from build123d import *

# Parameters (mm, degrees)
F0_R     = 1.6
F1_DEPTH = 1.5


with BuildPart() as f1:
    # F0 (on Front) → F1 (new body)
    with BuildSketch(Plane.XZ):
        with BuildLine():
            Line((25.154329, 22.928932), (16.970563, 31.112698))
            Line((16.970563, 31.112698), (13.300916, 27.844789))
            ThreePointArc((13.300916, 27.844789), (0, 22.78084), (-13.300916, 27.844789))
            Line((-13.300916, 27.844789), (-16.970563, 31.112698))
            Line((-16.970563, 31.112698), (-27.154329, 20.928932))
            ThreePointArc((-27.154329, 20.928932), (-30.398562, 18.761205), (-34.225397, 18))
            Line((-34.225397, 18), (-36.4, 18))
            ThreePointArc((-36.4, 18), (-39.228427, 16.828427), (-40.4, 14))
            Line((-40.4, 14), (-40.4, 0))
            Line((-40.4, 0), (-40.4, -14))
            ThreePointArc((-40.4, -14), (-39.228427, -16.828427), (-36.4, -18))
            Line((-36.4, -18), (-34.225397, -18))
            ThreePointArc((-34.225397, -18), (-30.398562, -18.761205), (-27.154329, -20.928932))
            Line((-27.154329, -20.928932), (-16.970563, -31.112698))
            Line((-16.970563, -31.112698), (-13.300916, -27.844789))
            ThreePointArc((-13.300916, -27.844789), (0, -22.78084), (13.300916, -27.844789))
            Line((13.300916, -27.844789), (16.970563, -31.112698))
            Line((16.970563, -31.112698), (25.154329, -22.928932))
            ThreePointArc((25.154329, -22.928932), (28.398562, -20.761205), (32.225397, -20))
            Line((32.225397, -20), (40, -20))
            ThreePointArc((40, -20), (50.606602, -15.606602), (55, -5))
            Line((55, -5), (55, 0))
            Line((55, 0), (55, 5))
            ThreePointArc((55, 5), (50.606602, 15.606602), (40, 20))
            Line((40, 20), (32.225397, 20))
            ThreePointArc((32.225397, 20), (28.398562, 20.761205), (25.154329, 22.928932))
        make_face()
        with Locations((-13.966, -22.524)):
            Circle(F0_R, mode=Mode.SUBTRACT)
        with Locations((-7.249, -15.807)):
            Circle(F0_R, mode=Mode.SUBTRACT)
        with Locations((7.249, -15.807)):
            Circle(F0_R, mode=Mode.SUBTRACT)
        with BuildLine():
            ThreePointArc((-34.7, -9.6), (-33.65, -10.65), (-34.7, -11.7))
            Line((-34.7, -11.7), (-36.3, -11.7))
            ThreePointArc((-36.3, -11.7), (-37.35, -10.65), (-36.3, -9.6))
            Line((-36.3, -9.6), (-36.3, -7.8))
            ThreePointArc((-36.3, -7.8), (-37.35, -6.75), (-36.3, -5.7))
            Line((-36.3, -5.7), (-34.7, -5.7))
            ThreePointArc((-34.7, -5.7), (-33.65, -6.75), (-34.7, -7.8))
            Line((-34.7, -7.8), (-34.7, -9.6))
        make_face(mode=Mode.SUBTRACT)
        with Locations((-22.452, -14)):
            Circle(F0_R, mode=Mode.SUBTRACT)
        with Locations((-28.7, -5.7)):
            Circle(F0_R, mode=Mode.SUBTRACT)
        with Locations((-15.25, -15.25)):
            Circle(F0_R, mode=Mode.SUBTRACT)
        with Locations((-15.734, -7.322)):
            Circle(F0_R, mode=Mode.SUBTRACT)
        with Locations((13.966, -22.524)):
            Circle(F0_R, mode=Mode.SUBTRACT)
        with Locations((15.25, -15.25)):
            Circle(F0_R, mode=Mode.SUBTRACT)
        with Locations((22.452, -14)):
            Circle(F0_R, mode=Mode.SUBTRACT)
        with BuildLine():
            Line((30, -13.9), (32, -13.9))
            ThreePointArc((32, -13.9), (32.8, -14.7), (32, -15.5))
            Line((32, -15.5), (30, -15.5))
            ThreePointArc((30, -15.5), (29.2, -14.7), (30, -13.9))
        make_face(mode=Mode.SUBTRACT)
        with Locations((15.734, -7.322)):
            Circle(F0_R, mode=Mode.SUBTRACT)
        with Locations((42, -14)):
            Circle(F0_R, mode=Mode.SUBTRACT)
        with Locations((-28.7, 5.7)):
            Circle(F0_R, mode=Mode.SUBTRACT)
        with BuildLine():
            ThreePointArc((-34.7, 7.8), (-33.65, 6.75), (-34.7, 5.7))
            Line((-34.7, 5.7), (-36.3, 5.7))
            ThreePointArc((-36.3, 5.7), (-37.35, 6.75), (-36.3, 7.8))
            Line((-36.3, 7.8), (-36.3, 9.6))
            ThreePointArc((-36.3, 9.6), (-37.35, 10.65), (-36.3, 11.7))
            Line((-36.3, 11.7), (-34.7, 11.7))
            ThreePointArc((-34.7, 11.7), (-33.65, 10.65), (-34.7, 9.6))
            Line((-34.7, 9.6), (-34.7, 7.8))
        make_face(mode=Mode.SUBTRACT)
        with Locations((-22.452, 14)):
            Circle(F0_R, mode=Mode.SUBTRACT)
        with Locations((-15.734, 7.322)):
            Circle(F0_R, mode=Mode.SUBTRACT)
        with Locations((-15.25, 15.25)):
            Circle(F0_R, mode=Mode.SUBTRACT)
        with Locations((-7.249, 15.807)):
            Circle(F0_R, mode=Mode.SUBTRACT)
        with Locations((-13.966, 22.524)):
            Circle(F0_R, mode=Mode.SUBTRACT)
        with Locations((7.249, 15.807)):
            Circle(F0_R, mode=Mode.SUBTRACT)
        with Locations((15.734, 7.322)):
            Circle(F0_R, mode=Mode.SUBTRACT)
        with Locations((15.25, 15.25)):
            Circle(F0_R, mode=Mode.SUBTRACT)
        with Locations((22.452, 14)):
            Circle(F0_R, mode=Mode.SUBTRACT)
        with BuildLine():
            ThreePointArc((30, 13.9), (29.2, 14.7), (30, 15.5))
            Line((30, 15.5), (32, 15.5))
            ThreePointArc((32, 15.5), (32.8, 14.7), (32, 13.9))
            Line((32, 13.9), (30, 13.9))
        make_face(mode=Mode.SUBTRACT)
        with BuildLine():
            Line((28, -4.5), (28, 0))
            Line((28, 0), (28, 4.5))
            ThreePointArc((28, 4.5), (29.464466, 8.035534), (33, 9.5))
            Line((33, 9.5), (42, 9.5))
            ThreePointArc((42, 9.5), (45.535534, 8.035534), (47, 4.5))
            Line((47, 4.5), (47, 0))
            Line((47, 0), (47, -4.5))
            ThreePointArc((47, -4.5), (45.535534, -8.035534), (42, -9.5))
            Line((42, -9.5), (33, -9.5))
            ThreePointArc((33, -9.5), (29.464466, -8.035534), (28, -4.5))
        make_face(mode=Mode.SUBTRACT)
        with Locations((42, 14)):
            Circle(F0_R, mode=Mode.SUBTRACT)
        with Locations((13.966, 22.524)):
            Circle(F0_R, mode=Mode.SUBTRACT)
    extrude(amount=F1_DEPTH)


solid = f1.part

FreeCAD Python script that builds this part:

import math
import FreeCAD as App
import Part
import Sketcher

doc = App.newDocument("Part")
params = doc.addObject("Spreadsheet::Sheet", "Params")
for row, (alias, value) in enumerate([
    ("sketch1_radius", "19.999999 mm"),
    ("sketch1_radius2", "4 mm"),
    ("sketch1_radius3", "14.999999 mm"),
    ("sketch1_radius4", "5 mm"),
    ("sketch1_diameter", "3.2 mm"),
    ("pad1_length", "1.5 mm"),
], start=1):
    params.set(f"A{row}", alias)
    params.set(f"B{row}", "=" + value)
    params.setAlias(f"B{row}", alias)

body = doc.addObject("PartDesign::Body", "Body")

# Sketch on XZ plane
sketch1 = body.newObject("Sketcher::SketchObject", "Sketch")
sketch1.AttachmentSupport = (doc.getObject("XZ_Plane"), [""])
sketch1.MapMode = "FlatFace"
sketch1.addGeometry([
    Part.LineSegment(App.Vector(25.2, 22.9, 0), App.Vector(17, 31.1, 0)),  # 0
    Part.LineSegment(App.Vector(17, 31.1, 0), App.Vector(13.3, 27.8, 0)),  # 1
    Part.ArcOfCircle(Part.Circle(App.Vector(0, 42.8, 0), App.Vector(0, 0, 1), 20), math.radians(-132), math.radians(-48)),  # 2
    Part.LineSegment(App.Vector(-13.3, 27.8, 0), App.Vector(-17, 31.1, 0)),  # 3
    Part.LineSegment(App.Vector(-17, 31.1, 0), App.Vector(-27.2, 20.9, 0)),  # 4
    Part.ArcOfCircle(Part.Circle(App.Vector(-34.2, 28, 0), App.Vector(0, 0, 1), 10), math.radians(-90), math.radians(-45)),  # 5
    Part.LineSegment(App.Vector(-34.2, 18, 0), App.Vector(-36.4, 18, 0)),  # 6
    Part.ArcOfCircle(Part.Circle(App.Vector(-36.4, 14, 0), App.Vector(0, 0, 1), 4), math.radians(90), math.radians(180)),  # 7
    Part.LineSegment(App.Vector(-40.4, 14, 0), App.Vector(-40.4, -14, 0)),  # 8
    Part.ArcOfCircle(Part.Circle(App.Vector(-36.4, -14, 0), App.Vector(0, 0, 1), 4), math.radians(-180), math.radians(-90)),  # 9
    Part.LineSegment(App.Vector(-36.4, -18, 0), App.Vector(-34.2, -18, 0)),  # 10
    Part.ArcOfCircle(Part.Circle(App.Vector(-34.2, -28, 0), App.Vector(0, 0, 1), 10), math.radians(45), math.radians(90)),  # 11
    Part.LineSegment(App.Vector(-27.2, -20.9, 0), App.Vector(-17, -31.1, 0)),  # 12
    Part.LineSegment(App.Vector(-17, -31.1, 0), App.Vector(-13.3, -27.8, 0)),  # 13
    Part.ArcOfCircle(Part.Circle(App.Vector(0, -42.8, 0), App.Vector(0, 0, 1), 20), math.radians(48), math.radians(132)),  # 14
    Part.LineSegment(App.Vector(13.3, -27.8, 0), App.Vector(17, -31.1, 0)),  # 15
    Part.LineSegment(App.Vector(17, -31.1, 0), App.Vector(25.2, -22.9, 0)),  # 16
    Part.ArcOfCircle(Part.Circle(App.Vector(32.2, -30, 0), App.Vector(0, 0, 1), 10), math.radians(90), math.radians(135)),  # 17
    Part.LineSegment(App.Vector(32.2, -20, 0), App.Vector(40, -20, 0)),  # 18
    Part.ArcOfCircle(Part.Circle(App.Vector(40, -5, 0), App.Vector(0, 0, 1), 15), math.radians(-90), math.radians(0)),  # 19
    Part.LineSegment(App.Vector(55, -5, 0), App.Vector(55, 5, 0)),  # 20
    Part.ArcOfCircle(Part.Circle(App.Vector(40, 5, 0), App.Vector(0, 0, 1), 15), math.radians(0), math.radians(90)),  # 21
    Part.LineSegment(App.Vector(40, 20, 0), App.Vector(32.2, 20, 0)),  # 22
    Part.ArcOfCircle(Part.Circle(App.Vector(32.2, 30, 0), App.Vector(0, 0, 1), 10), math.radians(-135), math.radians(-90)),  # 23
    Part.Circle(App.Vector(-22.5, -14, 0), App.Vector(0, 0, 1), 1.6),  # 24
    Part.Circle(App.Vector(-14, -22.5, 0), App.Vector(0, 0, 1), 1.6),  # 25
    Part.Circle(App.Vector(-15.2, -15.2, 0), App.Vector(0, 0, 1), 1.6),  # 26
    Part.Circle(App.Vector(-7.2, -15.8, 0), App.Vector(0, 0, 1), 1.6),  # 27
    Part.LineSegment(App.Vector(-34.7, -7.8, 0), App.Vector(-34.7, -9.6, 0)),  # 28
    Part.ArcOfCircle(Part.Circle(App.Vector(-34.7, -10.7, 0), App.Vector(0, 0, 1), 1.1), math.radians(-90), math.radians(90)),  # 29
    Part.LineSegment(App.Vector(-34.7, -11.7, 0), App.Vector(-36.3, -11.7, 0)),  # 30
    Part.ArcOfCircle(Part.Circle(App.Vector(-36.3, -10.7, 0), App.Vector(0, 0, 1), 1.1), math.radians(90), math.radians(270)),  # 31
    Part.LineSegment(App.Vector(-36.3, -9.6, 0), App.Vector(-36.3, -7.8, 0)),  # 32
    Part.ArcOfCircle(Part.Circle(App.Vector(-36.3, -6.8, 0), App.Vector(0, 0, 1), 1.1), math.radians(90), math.radians(270)),  # 33
    Part.LineSegment(App.Vector(-36.3, -5.7, 0), App.Vector(-34.7, -5.7, 0)),  # 34
    Part.ArcOfCircle(Part.Circle(App.Vector(-34.7, -6.8, 0), App.Vector(0, 0, 1), 1.1), math.radians(-90), math.radians(90)),  # 35
    Part.Circle(App.Vector(-28.7, -5.7, 0), App.Vector(0, 0, 1), 1.6),  # 36
    Part.Circle(App.Vector(-15.7, -7.3, 0), App.Vector(0, 0, 1), 1.6),  # 37
    Part.Circle(App.Vector(14, -22.5, 0), App.Vector(0, 0, 1), 1.6),  # 38
    Part.Circle(App.Vector(7.2, -15.8, 0), App.Vector(0, 0, 1), 1.6),  # 39
    Part.Circle(App.Vector(15.2, -15.2, 0), App.Vector(0, 0, 1), 1.6),  # 40
    Part.Circle(App.Vector(22.5, -14, 0), App.Vector(0, 0, 1), 1.6),  # 41
    Part.ArcOfCircle(Part.Circle(App.Vector(30, -14.7, 0), App.Vector(0, 0, 1), 0.8), math.radians(90), math.radians(270)),  # 42
    Part.LineSegment(App.Vector(30, -13.9, 0), App.Vector(32, -13.9, 0)),  # 43
    Part.ArcOfCircle(Part.Circle(App.Vector(32, -14.7, 0), App.Vector(0, 0, 1), 0.8), math.radians(-90), math.radians(90)),  # 44
    Part.LineSegment(App.Vector(32, -15.5, 0), App.Vector(30, -15.5, 0)),  # 45
    Part.Circle(App.Vector(42, -14, 0), App.Vector(0, 0, 1), 1.6),  # 46
    Part.Circle(App.Vector(15.7, -7.3, 0), App.Vector(0, 0, 1), 1.6),  # 47
    Part.Circle(App.Vector(-28.7, 5.7, 0), App.Vector(0, 0, 1), 1.6),  # 48
    Part.LineSegment(App.Vector(-34.7, 9.6, 0), App.Vector(-34.7, 7.8, 0)),  # 49
    Part.ArcOfCircle(Part.Circle(App.Vector(-34.7, 6.8, 0), App.Vector(0, 0, 1), 1.1), math.radians(-90), math.radians(90)),  # 50
    Part.LineSegment(App.Vector(-34.7, 5.7, 0), App.Vector(-36.3, 5.7, 0)),  # 51
    Part.ArcOfCircle(Part.Circle(App.Vector(-36.3, 6.8, 0), App.Vector(0, 0, 1), 1.1), math.radians(90), math.radians(270)),  # 52
    Part.LineSegment(App.Vector(-36.3, 7.8, 0), App.Vector(-36.3, 9.6, 0)),  # 53
    Part.ArcOfCircle(Part.Circle(App.Vector(-36.3, 10.7, 0), App.Vector(0, 0, 1), 1.1), math.radians(90), math.radians(270)),  # 54
    Part.LineSegment(App.Vector(-36.3, 11.7, 0), App.Vector(-34.7, 11.7, 0)),  # 55
    Part.ArcOfCircle(Part.Circle(App.Vector(-34.7, 10.7, 0), App.Vector(0, 0, 1), 1.1), math.radians(-90), math.radians(90)),  # 56
    Part.Circle(App.Vector(-15.7, 7.3, 0), App.Vector(0, 0, 1), 1.6),  # 57
    Part.Circle(App.Vector(-22.5, 14, 0), App.Vector(0, 0, 1), 1.6),  # 58
    Part.Circle(App.Vector(-15.2, 15.2, 0), App.Vector(0, 0, 1), 1.6),  # 59
    Part.Circle(App.Vector(-7.2, 15.8, 0), App.Vector(0, 0, 1), 1.6),  # 60
    Part.Circle(App.Vector(-14, 22.5, 0), App.Vector(0, 0, 1), 1.6),  # 61
    Part.Circle(App.Vector(15.7, 7.3, 0), App.Vector(0, 0, 1), 1.6),  # 62
    Part.ArcOfCircle(Part.Circle(App.Vector(33, -4.5, 0), App.Vector(0, 0, 1), 5), math.radians(180), math.radians(270)),  # 63
    Part.LineSegment(App.Vector(28, -4.5, 0), App.Vector(28, 4.5, 0)),  # 64
    Part.ArcOfCircle(Part.Circle(App.Vector(33, 4.5, 0), App.Vector(0, 0, 1), 5), math.radians(90), math.radians(180)),  # 65
    Part.LineSegment(App.Vector(33, 9.5, 0), App.Vector(42, 9.5, 0)),  # 66
    Part.ArcOfCircle(Part.Circle(App.Vector(42, 4.5, 0), App.Vector(0, 0, 1), 5), math.radians(0), math.radians(90)),  # 67
    Part.LineSegment(App.Vector(47, 4.5, 0), App.Vector(47, -4.5, 0)),  # 68
    Part.ArcOfCircle(Part.Circle(App.Vector(42, -4.5, 0), App.Vector(0, 0, 1), 5), math.radians(-90), math.radians(0)),  # 69
    Part.LineSegment(App.Vector(42, -9.5, 0), App.Vector(33, -9.5, 0)),  # 70
    Part.Circle(App.Vector(7.2, 15.8, 0), App.Vector(0, 0, 1), 1.6),  # 71
    Part.Circle(App.Vector(15.2, 15.2, 0), App.Vector(0, 0, 1), 1.6),  # 72
    Part.Circle(App.Vector(22.5, 14, 0), App.Vector(0, 0, 1), 1.6),  # 73
    Part.Circle(App.Vector(14, 22.5, 0), App.Vector(0, 0, 1), 1.6),  # 74
    Part.LineSegment(App.Vector(32, 13.9, 0), App.Vector(30, 13.9, 0)),  # 75
    Part.ArcOfCircle(Part.Circle(App.Vector(30, 14.7, 0), App.Vector(0, 0, 1), 0.8), math.radians(90), math.radians(270)),  # 76
    Part.LineSegment(App.Vector(30, 15.5, 0), App.Vector(32, 15.5, 0)),  # 77
    Part.ArcOfCircle(Part.Circle(App.Vector(32, 14.7, 0), App.Vector(0, 0, 1), 0.8), math.radians(-90), math.radians(90)),  # 78
    Part.Circle(App.Vector(42, 14, 0), App.Vector(0, 0, 1), 1.6),  # 79
], False)
sketch1.addConstraint([
    Sketcher.Constraint("Coincident", 0, 2, 1, 1),
    Sketcher.Constraint("Tangent", 1, 2, 2, 2),
    Sketcher.Constraint("Tangent", 2, 1, 3, 1),
    Sketcher.Constraint("Coincident", 3, 2, 4, 1),
    Sketcher.Constraint("Tangent", 4, 2, 5, 2),
    Sketcher.Constraint("Tangent", 5, 1, 6, 1),
    Sketcher.Constraint("Tangent", 6, 2, 7, 1),
    Sketcher.Constraint("Tangent", 7, 2, 8, 1),
    Sketcher.Constraint("Tangent", 8, 2, 9, 1),
    Sketcher.Constraint("Tangent", 9, 2, 10, 1),
    Sketcher.Constraint("Tangent", 10, 2, 11, 2),
    Sketcher.Constraint("Tangent", 11, 1, 12, 1),
    Sketcher.Constraint("Coincident", 12, 2, 13, 1),
    Sketcher.Constraint("Tangent", 13, 2, 14, 2),
    Sketcher.Constraint("Tangent", 14, 1, 15, 1),
    Sketcher.Constraint("Coincident", 15, 2, 16, 1),
    Sketcher.Constraint("Tangent", 16, 2, 17, 2),
    Sketcher.Constraint("Tangent", 17, 1, 18, 1),
    Sketcher.Constraint("Tangent", 18, 2, 19, 1),
    Sketcher.Constraint("Tangent", 19, 2, 20, 1),
    Sketcher.Constraint("Tangent", 20, 2, 21, 1),
    Sketcher.Constraint("Tangent", 21, 2, 22, 1),
    Sketcher.Constraint("Tangent", 22, 2, 23, 2),
    Sketcher.Constraint("Tangent", 23, 1, 0, 1),
    Sketcher.Constraint("Coincident", 28, 2, 29, 2),
    Sketcher.Constraint("Tangent", 29, 1, 30, 1),
    Sketcher.Constraint("Tangent", 30, 2, 31, 2),
    Sketcher.Constraint("Coincident", 31, 1, 32, 1),
    Sketcher.Constraint("Coincident", 32, 2, 33, 2),
    Sketcher.Constraint("Tangent", 33, 1, 34, 1),
    Sketcher.Constraint("Tangent", 34, 2, 35, 2),
    Sketcher.Constraint("Coincident", 35, 1, 28, 1),
    Sketcher.Constraint("Tangent", 42, 1, 43, 1),
    Sketcher.Constraint("Tangent", 43, 2, 44, 2),
    Sketcher.Constraint("Tangent", 44, 1, 45, 1),
    Sketcher.Constraint("Tangent", 45, 2, 42, 2),
    Sketcher.Constraint("Coincident", 49, 2, 50, 2),
    Sketcher.Constraint("Tangent", 50, 1, 51, 1),
    Sketcher.Constraint("Tangent", 51, 2, 52, 2),
    Sketcher.Constraint("Coincident", 52, 1, 53, 1),
    Sketcher.Constraint("Coincident", 53, 2, 54, 2),
    Sketcher.Constraint("Tangent", 54, 1, 55, 1),
    Sketcher.Constraint("Tangent", 55, 2, 56, 2),
    Sketcher.Constraint("Coincident", 56, 1, 49, 1),
    Sketcher.Constraint("Tangent", 63, 1, 64, 1),
    Sketcher.Constraint("Tangent", 64, 2, 65, 2),
    Sketcher.Constraint("Tangent", 65, 1, 66, 1),
    Sketcher.Constraint("Tangent", 66, 2, 67, 2),
    Sketcher.Constraint("Tangent", 67, 1, 68, 1),
    Sketcher.Constraint("Tangent", 68, 2, 69, 2),
    Sketcher.Constraint("Tangent", 69, 1, 70, 1),
    Sketcher.Constraint("Tangent", 70, 2, 63, 2),
    Sketcher.Constraint("Tangent", 75, 2, 76, 2),
    Sketcher.Constraint("Tangent", 76, 1, 77, 1),
    Sketcher.Constraint("Tangent", 77, 2, 78, 2),
    Sketcher.Constraint("Tangent", 78, 1, 75, 1),
    Sketcher.Constraint("Horizontal", 6),
    Sketcher.Constraint("Vertical", 8),
    Sketcher.Constraint("Horizontal", 10),
    Sketcher.Constraint("Horizontal", 18),
    Sketcher.Constraint("Vertical", 20),
    Sketcher.Constraint("Horizontal", 22),
    Sketcher.Constraint("Vertical", 28),
    Sketcher.Constraint("Horizontal", 30),
    Sketcher.Constraint("Vertical", 32),
    Sketcher.Constraint("Horizontal", 34),
    Sketcher.Constraint("Horizontal", 43),
    Sketcher.Constraint("Horizontal", 45),
    Sketcher.Constraint("Vertical", 49),
    Sketcher.Constraint("Horizontal", 51),
    Sketcher.Constraint("Vertical", 53),
    Sketcher.Constraint("Horizontal", 55),
    Sketcher.Constraint("Vertical", 64),
    Sketcher.Constraint("Horizontal", 66),
    Sketcher.Constraint("Vertical", 68),
    Sketcher.Constraint("Horizontal", 70),
    Sketcher.Constraint("Horizontal", 75),
    Sketcher.Constraint("Horizontal", 77),
    Sketcher.Constraint("Equal", 7, 9),
    Sketcher.Constraint("Equal", 5, 11),
    Sketcher.Constraint("Equal", 2, 14),
    Sketcher.Constraint("Equal", 11, 17),
    Sketcher.Constraint("Equal", 19, 21),
    Sketcher.Constraint("Equal", 17, 23),
    Sketcher.Constraint("Equal", 24, 25),
    Sketcher.Constraint("Equal", 25, 26),
    Sketcher.Constraint("Equal", 26, 27),
    Sketcher.Constraint("Equal", 29, 31),
    Sketcher.Constraint("Equal", 31, 33),
    Sketcher.Constraint("Equal", 33, 35),
    Sketcher.Constraint("Equal", 27, 36),
    Sketcher.Constraint("Equal", 36, 37),
    Sketcher.Constraint("Equal", 37, 38),
    Sketcher.Constraint("Equal", 38, 39),
    Sketcher.Constraint("Equal", 39, 40),
    Sketcher.Constraint("Equal", 40, 41),
    Sketcher.Constraint("Equal", 41, 46),
    Sketcher.Constraint("Equal", 46, 47),
    Sketcher.Constraint("Equal", 47, 48),
    Sketcher.Constraint("Equal", 35, 50),
    Sketcher.Constraint("Equal", 50, 52),
    Sketcher.Constraint("Equal", 52, 54),
    Sketcher.Constraint("Equal", 54, 56),
    Sketcher.Constraint("Equal", 48, 57),
    Sketcher.Constraint("Equal", 57, 58),
    Sketcher.Constraint("Equal", 58, 59),
    Sketcher.Constraint("Equal", 59, 60),
    Sketcher.Constraint("Equal", 60, 61),
    Sketcher.Constraint("Equal", 61, 62),
    Sketcher.Constraint("Equal", 63, 65),
    Sketcher.Constraint("Equal", 65, 67),
    Sketcher.Constraint("Equal", 67, 69),
    Sketcher.Constraint("Equal", 62, 71),
    Sketcher.Constraint("Equal", 71, 72),
    Sketcher.Constraint("Equal", 72, 73),
    Sketcher.Constraint("Equal", 73, 74),
    Sketcher.Constraint("Equal", 44, 76),
    Sketcher.Constraint("Equal", 74, 79),
    Sketcher.Constraint("Symmetric", 2, 3, 14, 3, -1, 1),
    Sketcher.Constraint("Symmetric", 47, 3, 57, 3, -1, 1),
    Sketcher.Constraint("Symmetric", 41, 3, 58, 3, -1, 1),
    Sketcher.Constraint("Symmetric", 40, 3, 59, 3, -1, 1),
    Sketcher.Constraint("Symmetric", 39, 3, 60, 3, -1, 1),
    Sketcher.Constraint("Symmetric", 38, 3, 61, 3, -1, 1),
    Sketcher.Constraint("Symmetric", 37, 3, 62, 3, -1, 1),
    Sketcher.Constraint("Symmetric", 27, 3, 71, 3, -1, 1),
    Sketcher.Constraint("Symmetric", 26, 3, 72, 3, -1, 1),
    Sketcher.Constraint("Symmetric", 24, 3, 73, 3, -1, 1),
    Sketcher.Constraint("Symmetric", 25, 3, 74, 3, -1, 1),
    Sketcher.Constraint("Symmetric", 0, 2, 12, 2, -1, 1),
    Sketcher.Constraint("Symmetric", 3, 2, 15, 2, -1, 1),
    Sketcher.Constraint("Symmetric", 25, 3, 38, 3, -2),
    Sketcher.Constraint("Symmetric", 27, 3, 39, 3, -2),
    Sketcher.Constraint("Symmetric", 26, 3, 40, 3, -2),
    Sketcher.Constraint("Symmetric", 24, 3, 41, 3, -2),
    Sketcher.Constraint("Symmetric", 37, 3, 47, 3, -2),
    Sketcher.Constraint("Symmetric", 1, 2, 2, 1, -2),
    Sketcher.Constraint("Symmetric", 5, 3, 11, 3, -1),
    Sketcher.Constraint("Symmetric", 17, 3, 23, 3, -1),
    Sketcher.Constraint("Symmetric", 36, 3, 48, 3, -1),
    Sketcher.Constraint("Symmetric", 35, 3, 50, 3, -1),
    Sketcher.Constraint("Symmetric", 31, 3, 54, 3, -1),
    Sketcher.Constraint("Symmetric", 42, 3, 76, 3, -1),
    Sketcher.Constraint("Symmetric", 46, 3, 79, 3, -1),
    Sketcher.Constraint("Perpendicular", 0, 4),
    Sketcher.Constraint("Perpendicular", 4, 12),
    Sketcher.Constraint("Perpendicular", 12, 16),
    Sketcher.Constraint("Horizontal", 9, 3, 24, 3),
    Sketcher.Constraint("Horizontal", 41, 3, 46, 3),
    Sketcher.Constraint("Horizontal", 36, 3, 33, 1),
    Sketcher.Constraint("Vertical", 31, 3, 33, 3),
    Sketcher.Constraint("Vertical", 29, 3, 35, 3),
    Sketcher.Constraint("Vertical", 33, 3, 52, 3),
    Sketcher.Constraint("Vertical", 50, 3, 56, 3),
    Sketcher.Constraint("Vertical", 46, 3, 67, 3),
    Sketcher.Constraint("Vertical", 44, 3, 78, 3),
    Sketcher.Constraint("Vertical", 56, 3, 28, 2),
    Sketcher.Constraint("Vertical", 30, 2, 31, 1),
    Sketcher.Constraint("Vertical", 35, 1, 49, 2),
    Sketcher.Constraint("Vertical", 51, 2, 52, 1),
    Sketcher.Constraint("Equal", 70, 64),
    Sketcher.Constraint("Radius", 2, 19.999999),
    Sketcher.Constraint("Radius", 7, 4.0),
    Sketcher.Constraint("Radius", 19, 14.999999),
    Sketcher.Constraint("Radius", 63, 5.0),
    Sketcher.Constraint("Diameter", 24, 3.2),
    Sketcher.Constraint("Radius", 42, 0.8),
    Sketcher.Constraint("DistanceX", 43, 1, 43, 2, 2.0),
    Sketcher.Constraint("DistanceX", 66, 1, 66, 2, 9.0),
    Sketcher.Constraint("DistanceY", 8, 2, 8, 1, 28.0),
    Sketcher.Constraint("DistanceY", 20, 1, 20, 2, 10.0),
    Sketcher.Constraint("Radius", 29, 1.05),
    Sketcher.Constraint("DistanceX", 30, 2, 30, 1, 1.6),
    Sketcher.Constraint("DistanceY", 28, 2, 28, 1, 1.8),
    Sketcher.Constraint("DistanceX", -1, 1, 19, 3, 40.000001),
    Sketcher.Constraint("DistanceX", -1, 1, 42, 3, 30.0),
    Sketcher.Constraint("DistanceX", -1, 1, 46, 3, 42.0),
    Sketcher.Constraint("DistanceX", 7, 3, -1, 1, 36.4),
    Sketcher.Constraint("DistanceX", 29, 3, -1, 1, 34.7),
    Sketcher.Constraint("DistanceX", 36, 3, -1, 1, 28.7),
    Sketcher.Constraint("DistanceY", 36, 3, -1, 1, 5.7),
    Sketcher.Constraint("DistanceY", 42, 3, -1, 1, 14.7),
    Sketcher.Constraint("DistanceY", 63, 3, -1, 1, 4.5),
    Sketcher.Constraint("DistanceX", 26, 3, -1, 1, 15.25),
    Sketcher.Constraint("DistanceY", 26, 3, -1, 1, 15.25),
    Sketcher.Constraint("DistanceX", 24, 3, -1, 1, 22.452),
    Sketcher.Constraint("DistanceX", 25, 3, -1, 1, 13.966),
    Sketcher.Constraint("DistanceY", 25, 3, -1, 1, 22.524),
    Sketcher.Constraint("DistanceX", 27, 3, -1, 1, 7.249),
    Sketcher.Constraint("DistanceY", 27, 3, -1, 1, 15.807),
    Sketcher.Constraint("DistanceX", 37, 3, -1, 1, 15.734),
    Sketcher.Constraint("DistanceY", 37, 3, -1, 1, 7.322),
    Sketcher.Constraint("Radius", 5, 10.000002),
    Sketcher.Constraint("DistanceY", -1, 1, 0, 2, 31.112698),
    Sketcher.Constraint("Distance", 1, 4.913811),
    Sketcher.Constraint("DistanceX", 6, 2, 6, 1, 2.174603),
])
sketch1.setExpression("Constraints[161]", "Params.sketch1_radius")
sketch1.setExpression("Constraints[162]", "Params.sketch1_radius2")
sketch1.setExpression("Constraints[163]", "Params.sketch1_radius3")
sketch1.setExpression("Constraints[164]", "Params.sketch1_radius4")
sketch1.setExpression("Constraints[165]", "Params.sketch1_diameter")
pad1 = body.newObject("PartDesign::Pad", "Pad")
pad1.Profile = sketch1
pad1.setExpression("Length", "Params.pad1_length")

doc.recompute()
